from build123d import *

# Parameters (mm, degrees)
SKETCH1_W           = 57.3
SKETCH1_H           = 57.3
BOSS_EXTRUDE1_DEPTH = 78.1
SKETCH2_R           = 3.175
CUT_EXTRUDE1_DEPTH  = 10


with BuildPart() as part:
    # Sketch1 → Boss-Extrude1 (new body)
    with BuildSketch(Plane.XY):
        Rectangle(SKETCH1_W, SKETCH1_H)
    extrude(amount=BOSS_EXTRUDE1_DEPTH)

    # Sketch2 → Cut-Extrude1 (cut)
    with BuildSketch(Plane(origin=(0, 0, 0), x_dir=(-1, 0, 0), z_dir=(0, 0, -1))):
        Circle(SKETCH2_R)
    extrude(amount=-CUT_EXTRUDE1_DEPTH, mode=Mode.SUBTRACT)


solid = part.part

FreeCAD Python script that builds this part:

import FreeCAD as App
import Part
import Sketcher
from FreeCAD import Vector
Q = App.Units.Quantity

doc = App.newDocument("Part")
params = doc.addObject("Spreadsheet::Sheet", "Params")
for row, (alias, value) in enumerate([
    ("sketch1_width", "57.3 mm"),
    ("pad1_length", "78.1 mm"),
    ("sketch2_diameter", "6.35 mm"),
    ("pocket1_length", "10 mm"),
], start=1):
    params.set(f"A{row}", alias)
    params.set(f"B{row}", "=" + value)
    params.setAlias(f"B{row}", alias)

body = doc.addObject("PartDesign::Body", "Body")

# Sketch on XY plane
sketch1 = body.newObject("Sketcher::SketchObject", "Sketch")
sketch1.AttachmentSupport = (doc.getObject("XY_Plane"), [""])
sketch1.MapMode = "FlatFace"
sketch1.addGeometry([
    Part.LineSegment(Vector(-29, 29, 0), Vector(-29, -29, 0)),
    Part.LineSegment(Vector(-29, -29, 0), Vector(29, -29, 0)),
    Part.LineSegment(Vector(29, -29, 0), Vector(29, 29, 0)),
    Part.LineSegment(Vector(29, 29, 0), Vector(-29, 29, 0)),
], False)
sketch1.addConstraint([
    Sketcher.Constraint("Coincident", 0, 2, 1, 1),
    Sketcher.Constraint("Coincident", 1, 2, 2, 1),
    Sketcher.Constraint("Coincident", 2, 2, 3, 1),
    Sketcher.Constraint("Coincident", 3, 2, 0, 1),
    Sketcher.Constraint("Vertical", 0),
    Sketcher.Constraint("Horizontal", 1),
    Sketcher.Constraint("Vertical", 2),
    Sketcher.Constraint("Horizontal", 3),
    Sketcher.Constraint("Symmetric", 0, 2, 2, 2, -1, 1),
    Sketcher.Constraint("Equal", 3, 0),
    Sketcher.Constraint("DistanceX", 1, 1, 1, 2, Q("57.3 mm")),
])
sketch1.setExpression("Constraints[10]", "Params.sketch1_width")
pad1 = body.newObject("PartDesign::Pad", "Pad")
pad1.Profile = sketch1
pad1.setExpression("Length", "Params.pad1_length")

# Sketch on XY plane
sketch2 = body.newObject("Sketcher::SketchObject", "Sketch001")
sketch2.AttachmentSupport = (doc.getObject("XY_Plane"), [""])
sketch2.MapMode = "FlatFace"
sketch2.addGeometry(Part.Circle(Vector(0, 0, 0), Vector(0, 0, 1), 3.2), False)
sketch2.addConstraint([
    Sketcher.Constraint("Coincident", 0, 3, -1, 1),
    Sketcher.Constraint("Diameter", 0, Q("6.35 mm")),
])
sketch2.setExpression("Constraints[1]", "Params.sketch2_diameter")
pocket1 = body.newObject("PartDesign::Pocket", "Pocket")
pocket1.Profile = sketch2
pocket1.setExpression("Length", "Params.pocket1_length")
pocket1.Reversed = True

doc.recompute()
